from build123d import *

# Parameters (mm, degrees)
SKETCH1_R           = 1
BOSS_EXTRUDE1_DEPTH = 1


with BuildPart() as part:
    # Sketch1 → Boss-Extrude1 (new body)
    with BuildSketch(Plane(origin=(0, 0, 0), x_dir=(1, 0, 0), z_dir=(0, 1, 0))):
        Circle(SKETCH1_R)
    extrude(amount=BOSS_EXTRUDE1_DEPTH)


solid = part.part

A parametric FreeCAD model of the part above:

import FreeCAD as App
import Part
import Sketcher

V = App.Vector

doc = App.newDocument("Part")
body = doc.addObject("PartDesign::Body", "Body")

# Sketch on XZ plane
sketch1 = body.newObject("Sketcher::SketchObject", "Sketch")
sketch1.AttachmentSupport = (doc.getObject("XZ_Plane"), [""])
sketch1.MapMode = "FlatFace"
sketch1.addGeometry(Part.Circle(V(0, 0, 0), V(0, 0, 1), 1), False)
sketch1.addConstraint([
    Sketcher.Constraint("Coincident", 0, 3, -1, 1),
    Sketcher.Constraint("Diameter", 0, 2.0),
])
pad1 = body.newObject("PartDesign::Pad", "Pad")
pad1.Profile = sketch1
pad1.Length = 1
pad1.Reversed = True

doc.recompute()
